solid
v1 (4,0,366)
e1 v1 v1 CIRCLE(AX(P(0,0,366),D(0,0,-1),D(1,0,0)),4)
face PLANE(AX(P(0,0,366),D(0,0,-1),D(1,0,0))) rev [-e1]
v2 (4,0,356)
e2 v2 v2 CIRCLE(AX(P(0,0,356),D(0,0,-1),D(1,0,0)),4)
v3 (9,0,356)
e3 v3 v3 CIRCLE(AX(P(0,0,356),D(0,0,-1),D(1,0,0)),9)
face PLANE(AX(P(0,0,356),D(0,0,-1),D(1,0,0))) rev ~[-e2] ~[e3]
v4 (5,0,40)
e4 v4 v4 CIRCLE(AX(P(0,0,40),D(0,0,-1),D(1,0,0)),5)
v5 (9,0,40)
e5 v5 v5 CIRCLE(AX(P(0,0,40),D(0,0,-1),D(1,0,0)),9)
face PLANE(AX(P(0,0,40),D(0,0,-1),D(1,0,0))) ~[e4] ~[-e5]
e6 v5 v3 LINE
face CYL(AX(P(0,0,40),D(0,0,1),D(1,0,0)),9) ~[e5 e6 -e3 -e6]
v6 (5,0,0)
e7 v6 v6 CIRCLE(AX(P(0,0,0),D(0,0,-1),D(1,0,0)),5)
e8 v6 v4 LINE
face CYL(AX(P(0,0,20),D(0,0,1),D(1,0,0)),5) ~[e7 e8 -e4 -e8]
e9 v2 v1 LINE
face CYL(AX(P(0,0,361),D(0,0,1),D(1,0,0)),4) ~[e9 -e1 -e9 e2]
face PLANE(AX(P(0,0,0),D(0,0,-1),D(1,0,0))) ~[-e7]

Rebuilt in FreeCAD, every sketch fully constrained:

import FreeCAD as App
import Part
import Sketcher

V = App.Vector
Q = App.Units.Quantity


def add_polygon(sketch, points):
    """Adds a closed chain of lines whose ends are joined by coincident constraints."""
    first, n = sketch.GeometryCount, len(points)
    for a, b in zip(points, points[1:] + points[:1]):
        sketch.addGeometry(Part.LineSegment(App.Vector(*a, 0), App.Vector(*b, 0)), False)
    for i in range(n):
        sketch.addConstraint(Sketcher.Constraint("Coincident", first + i, 2, first + (i + 1) % n, 1))

doc = App.newDocument("Part")
params = doc.addObject("Spreadsheet::Sheet", "Params")
for row, (alias, value) in enumerate([
    ("sketch1_width", "5 mm"),
    ("sketch1_width2", "4 mm"),
    ("sketch1_height", "366 mm"),
    ("sketch1_height2", "40 mm"),
    ("sketch1_height3", "316 mm"),
    ("revolution_angle", "360 deg"),
], start=1):
    params.set(f"A{row}", alias)
    params.set(f"B{row}", "=" + value)
    params.setAlias(f"B{row}", alias)

body = doc.addObject("PartDesign::Body", "Body")

sketch1 = body.newObject("Sketcher::SketchObject", "Sketch")
sketch1.AttachmentSupport = (doc.getObject("XZ_Plane"), [""])
sketch1.MapMode = "FlatFace"
add_polygon(sketch1, [(0, 366), (0, 0), (5, 0), (5, 40), (9, 40), (9, 356), (4, 356), (4, 366)])
sketch1.addConstraint([
    Sketcher.Constraint("Vertical", 0),
    Sketcher.Constraint("Horizontal", 1),
    Sketcher.Constraint("Vertical", 2),
    Sketcher.Constraint("Horizontal", 3),
    Sketcher.Constraint("Vertical", 4),
    Sketcher.Constraint("Horizontal", 5),
    Sketcher.Constraint("Vertical", 6),
    Sketcher.Constraint("Horizontal", 7),
    Sketcher.Constraint("Coincident", 0, 2, -1, 1),
    Sketcher.Constraint("Equal", 1, 5),
    Sketcher.Constraint("DistanceX", 1, 1, 1, 2, Q("5 mm")),
    Sketcher.Constraint("DistanceX", 3, 1, 3, 2, Q("4 mm")),
    Sketcher.Constraint("DistanceY", 0, 2, 0, 1, Q("366 mm")),
    Sketcher.Constraint("DistanceY", 2, 1, 2, 2, Q("40 mm")),
    Sketcher.Constraint("DistanceY", 4, 1, 4, 2, Q("316 mm")),
])
sketch1.setExpression("Constraints[18]", "Params.sketch1_width")
sketch1.setExpression("Constraints[19]", "Params.sketch1_width2")
sketch1.setExpression("Constraints[20]", "Params.sketch1_height")
sketch1.setExpression("Constraints[21]", "Params.sketch1_height2")
sketch1.setExpression("Constraints[22]", "Params.sketch1_height3")
revolution = body.newObject("PartDesign::Revolution", "Revolution")
revolution.Profile = sketch1
revolution.ReferenceAxis = (sketch1, ["V_Axis"])
revolution.setExpression("Angle", "Params.revolution_angle")

doc.recompute()
